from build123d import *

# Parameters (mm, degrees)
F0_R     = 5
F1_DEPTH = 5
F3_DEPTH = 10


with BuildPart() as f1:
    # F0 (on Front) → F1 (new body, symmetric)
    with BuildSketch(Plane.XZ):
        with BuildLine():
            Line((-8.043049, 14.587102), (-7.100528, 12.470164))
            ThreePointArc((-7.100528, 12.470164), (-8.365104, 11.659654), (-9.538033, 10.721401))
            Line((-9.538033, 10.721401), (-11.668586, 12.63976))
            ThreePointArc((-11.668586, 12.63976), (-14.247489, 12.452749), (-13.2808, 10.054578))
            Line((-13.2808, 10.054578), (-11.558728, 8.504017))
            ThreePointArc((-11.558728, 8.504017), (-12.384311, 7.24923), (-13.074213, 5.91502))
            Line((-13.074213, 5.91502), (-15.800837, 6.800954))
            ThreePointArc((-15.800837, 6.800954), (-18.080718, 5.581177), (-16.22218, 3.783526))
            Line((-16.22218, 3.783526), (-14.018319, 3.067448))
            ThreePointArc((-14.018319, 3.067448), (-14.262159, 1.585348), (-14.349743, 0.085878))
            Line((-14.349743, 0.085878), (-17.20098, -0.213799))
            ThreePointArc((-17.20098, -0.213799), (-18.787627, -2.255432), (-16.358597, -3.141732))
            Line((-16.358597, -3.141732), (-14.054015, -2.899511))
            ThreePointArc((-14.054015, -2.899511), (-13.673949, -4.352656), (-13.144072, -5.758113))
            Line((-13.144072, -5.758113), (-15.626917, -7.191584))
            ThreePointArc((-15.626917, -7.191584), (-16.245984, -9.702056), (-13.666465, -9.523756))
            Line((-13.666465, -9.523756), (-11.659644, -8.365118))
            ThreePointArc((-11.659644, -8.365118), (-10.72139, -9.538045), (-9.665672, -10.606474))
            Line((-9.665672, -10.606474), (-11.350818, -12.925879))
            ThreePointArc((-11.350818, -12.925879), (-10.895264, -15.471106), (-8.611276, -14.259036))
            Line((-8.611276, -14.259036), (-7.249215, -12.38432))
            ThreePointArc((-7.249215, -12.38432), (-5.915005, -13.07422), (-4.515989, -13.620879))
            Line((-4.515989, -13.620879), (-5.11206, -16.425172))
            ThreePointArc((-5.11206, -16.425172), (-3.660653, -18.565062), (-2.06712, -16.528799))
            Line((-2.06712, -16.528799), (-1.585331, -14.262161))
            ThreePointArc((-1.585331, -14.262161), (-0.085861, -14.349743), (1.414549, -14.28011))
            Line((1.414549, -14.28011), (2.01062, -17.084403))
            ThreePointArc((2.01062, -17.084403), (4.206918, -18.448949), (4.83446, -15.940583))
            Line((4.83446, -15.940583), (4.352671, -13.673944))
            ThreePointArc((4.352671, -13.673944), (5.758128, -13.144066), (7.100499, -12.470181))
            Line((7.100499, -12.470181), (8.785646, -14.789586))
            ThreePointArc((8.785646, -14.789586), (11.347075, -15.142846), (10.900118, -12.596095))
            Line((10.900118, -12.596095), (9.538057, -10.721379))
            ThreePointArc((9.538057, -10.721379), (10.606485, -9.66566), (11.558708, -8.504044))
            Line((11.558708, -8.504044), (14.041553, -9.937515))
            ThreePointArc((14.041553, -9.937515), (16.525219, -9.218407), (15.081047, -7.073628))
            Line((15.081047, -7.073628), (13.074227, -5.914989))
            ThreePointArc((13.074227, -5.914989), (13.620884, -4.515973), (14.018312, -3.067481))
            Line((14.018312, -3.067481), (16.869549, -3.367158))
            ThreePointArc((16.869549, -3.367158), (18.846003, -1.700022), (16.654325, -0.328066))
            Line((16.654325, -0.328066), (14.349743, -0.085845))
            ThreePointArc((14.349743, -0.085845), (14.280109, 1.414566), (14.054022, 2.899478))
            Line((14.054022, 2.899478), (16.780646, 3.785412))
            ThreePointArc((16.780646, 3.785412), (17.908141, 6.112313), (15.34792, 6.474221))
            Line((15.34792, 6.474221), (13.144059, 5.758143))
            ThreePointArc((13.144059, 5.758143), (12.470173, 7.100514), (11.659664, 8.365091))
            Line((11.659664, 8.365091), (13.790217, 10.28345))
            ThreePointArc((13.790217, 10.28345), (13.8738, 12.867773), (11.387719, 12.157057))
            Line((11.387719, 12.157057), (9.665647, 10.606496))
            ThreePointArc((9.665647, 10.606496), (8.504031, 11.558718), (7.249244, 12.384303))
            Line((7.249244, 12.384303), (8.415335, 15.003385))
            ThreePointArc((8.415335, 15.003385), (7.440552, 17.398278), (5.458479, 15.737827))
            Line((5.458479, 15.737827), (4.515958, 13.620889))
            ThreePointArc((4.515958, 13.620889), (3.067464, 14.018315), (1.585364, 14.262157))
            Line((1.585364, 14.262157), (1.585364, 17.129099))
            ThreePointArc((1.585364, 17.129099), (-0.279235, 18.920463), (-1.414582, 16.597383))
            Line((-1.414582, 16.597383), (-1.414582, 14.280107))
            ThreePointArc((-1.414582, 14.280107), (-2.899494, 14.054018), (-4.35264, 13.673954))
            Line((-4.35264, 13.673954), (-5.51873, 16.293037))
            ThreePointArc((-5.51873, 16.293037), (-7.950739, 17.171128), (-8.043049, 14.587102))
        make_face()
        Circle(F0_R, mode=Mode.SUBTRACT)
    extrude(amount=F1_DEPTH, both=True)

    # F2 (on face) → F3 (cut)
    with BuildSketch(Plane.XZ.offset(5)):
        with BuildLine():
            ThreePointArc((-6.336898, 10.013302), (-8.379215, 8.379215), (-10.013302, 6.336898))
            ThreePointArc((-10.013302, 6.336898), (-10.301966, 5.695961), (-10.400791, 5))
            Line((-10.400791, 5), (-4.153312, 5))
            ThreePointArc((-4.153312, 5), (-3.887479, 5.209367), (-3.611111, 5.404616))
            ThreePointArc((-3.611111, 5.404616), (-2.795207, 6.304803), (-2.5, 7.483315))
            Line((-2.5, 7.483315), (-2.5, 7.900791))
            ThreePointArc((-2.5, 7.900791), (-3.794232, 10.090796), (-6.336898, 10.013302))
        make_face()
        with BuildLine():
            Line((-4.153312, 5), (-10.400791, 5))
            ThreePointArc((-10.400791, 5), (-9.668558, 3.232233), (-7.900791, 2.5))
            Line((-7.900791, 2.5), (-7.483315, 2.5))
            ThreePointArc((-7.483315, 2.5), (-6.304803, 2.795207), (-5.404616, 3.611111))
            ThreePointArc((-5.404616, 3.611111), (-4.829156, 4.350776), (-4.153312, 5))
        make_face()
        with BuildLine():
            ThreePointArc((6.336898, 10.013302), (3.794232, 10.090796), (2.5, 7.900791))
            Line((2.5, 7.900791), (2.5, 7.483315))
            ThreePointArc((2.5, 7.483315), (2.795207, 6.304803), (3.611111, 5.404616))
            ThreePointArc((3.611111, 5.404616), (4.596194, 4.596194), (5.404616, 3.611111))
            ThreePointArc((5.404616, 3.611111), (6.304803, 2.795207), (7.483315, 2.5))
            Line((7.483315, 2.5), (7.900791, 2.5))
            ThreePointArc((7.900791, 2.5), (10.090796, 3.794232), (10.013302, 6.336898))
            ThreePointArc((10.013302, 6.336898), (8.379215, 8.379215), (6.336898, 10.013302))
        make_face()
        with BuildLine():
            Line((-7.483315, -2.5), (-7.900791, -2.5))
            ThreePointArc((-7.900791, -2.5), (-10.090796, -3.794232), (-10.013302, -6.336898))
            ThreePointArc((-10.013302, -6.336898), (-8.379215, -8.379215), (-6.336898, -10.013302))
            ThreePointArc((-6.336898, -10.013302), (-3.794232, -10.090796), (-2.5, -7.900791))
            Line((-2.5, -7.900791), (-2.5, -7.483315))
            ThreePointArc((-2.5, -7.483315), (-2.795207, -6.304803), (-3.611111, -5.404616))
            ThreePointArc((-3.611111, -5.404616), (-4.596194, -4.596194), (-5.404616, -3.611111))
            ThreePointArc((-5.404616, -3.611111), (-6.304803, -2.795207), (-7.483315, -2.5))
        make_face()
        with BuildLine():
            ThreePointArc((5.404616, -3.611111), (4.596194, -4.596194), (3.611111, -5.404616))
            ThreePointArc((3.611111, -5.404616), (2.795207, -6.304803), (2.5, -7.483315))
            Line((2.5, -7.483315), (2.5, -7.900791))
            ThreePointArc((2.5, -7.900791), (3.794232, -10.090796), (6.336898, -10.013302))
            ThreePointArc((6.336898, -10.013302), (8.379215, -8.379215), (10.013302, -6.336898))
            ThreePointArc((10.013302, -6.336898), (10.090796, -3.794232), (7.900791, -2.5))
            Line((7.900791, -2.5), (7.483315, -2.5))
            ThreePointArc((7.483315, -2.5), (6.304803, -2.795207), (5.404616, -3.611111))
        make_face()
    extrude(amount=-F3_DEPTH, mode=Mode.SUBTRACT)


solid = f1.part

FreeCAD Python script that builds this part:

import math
import FreeCAD as App
import Part
import Sketcher
Q = App.Units.Quantity

doc = App.newDocument("Part")
body = doc.addObject("PartDesign::Body", "Body")

# Sketch on XZ plane
sketch1 = body.newObject("Sketcher::SketchObject", "Sketch")
sketch1.AttachmentSupport = (doc.getObject("XZ_Plane"), [""])
sketch1.MapMode = "FlatFace"
sketch1.addGeometry([
    Part.LineSegment(App.Vector(-8.043049, 14.587102, 0), App.Vector(-7.100528, 12.470164, 0)),  # 0
    Part.ArcOfCircle(Part.Circle(App.Vector(0.000012, -0.000024, 0), App.Vector(0, 0, 1), 14.350026), math.radians(119.657239), math.radians(131.657083)),  # 1
    Part.LineSegment(App.Vector(-9.538033, 10.721401, 0), App.Vector(-11.668586, 12.63976, 0)),  # 2
    Part.ArcOfCircle(Part.Circle(App.Vector(-12.88986, 11.606082, 0), App.Vector(0, 0, 1), 1.6), math.radians(40.24433), math.radians(255.857324)),  # 3
    Part.LineSegment(App.Vector(-13.2808, 10.054578, 0), App.Vector(-11.558728, 8.504017, 0)),  # 4
    Part.ArcOfCircle(Part.Circle(App.Vector(0.000044, -0.000027, 0), App.Vector(0, 0, 1), 14.350051), math.radians(143.657259), math.radians(155.657082)),  # 5
    Part.LineSegment(App.Vector(-13.074213, 5.91502, 0), App.Vector(-15.800837, 6.800954, 0)),  # 6
    Part.ArcOfCircle(Part.Circle(App.Vector(-16.496092, 5.359906, 0), App.Vector(0, 0, 1), 1.6), math.radians(64.244329), math.radians(279.857309)),  # 7
    Part.LineSegment(App.Vector(-16.22218, 3.783526, 0), App.Vector(-14.018319, 3.067448, 0)),  # 8
    Part.ArcOfCircle(Part.Circle(App.Vector(-0.000035, 0.000005, 0), App.Vector(0, 0, 1), 14.349965), math.radians(167.657232), math.radians(179.657128)),  # 9
    Part.LineSegment(App.Vector(-14.349743, 0.085878, 0), App.Vector(-17.20098, -0.213799, 0)),  # 10
    Part.ArcOfCircle(Part.Circle(App.Vector(-17.25, -1.813048, 0), App.Vector(0, 0, 1), 1.6), math.radians(88.244326), math.radians(303.857331)),  # 11
    Part.LineSegment(App.Vector(-16.358597, -3.141732, 0), App.Vector(-14.054015, -2.899511, 0)),  # 12
    Part.ArcOfCircle(Part.Circle(App.Vector(0.000014, 0.000006, 0), App.Vector(0, 0, 1), 14.350015), math.radians(-168.342744), math.radians(-156.342891)),  # 13
    Part.LineSegment(App.Vector(-13.144072, -5.758113, 0), App.Vector(-15.626917, -7.191584, 0)),  # 14
    Part.ArcOfCircle(Part.Circle(App.Vector(-15.021226, -8.672509, 0), App.Vector(0, 0, 1), 1.6), math.radians(112.24432), math.radians(327.857311)),  # 15
    Part.LineSegment(App.Vector(-13.666465, -9.523756, 0), App.Vector(-11.659644, -8.365118, 0)),  # 16
    Part.ArcOfCircle(Part.Circle(App.Vector(-0.00002, -0.000019, 0), App.Vector(0, 0, 1), 14.349973), math.radians(-144.342772), math.radians(-132.342884)),  # 17
    Part.LineSegment(App.Vector(-9.665672, -10.606474, 0), App.Vector(-11.350818, -12.925879, 0)),  # 18
    Part.ArcOfCircle(Part.Circle(App.Vector(-10.195145, -14.032414, 0), App.Vector(0, 0, 1), 1.6), math.radians(136.244321), math.radians(351.857328)),  # 19
    Part.LineSegment(App.Vector(-8.611276, -14.259036, 0), App.Vector(-7.249215, -12.38432, 0)),  # 20
    Part.ArcOfCircle(Part.Circle(App.Vector(-0.000031, -0.00007, 0), App.Vector(0, 0, 1), 14.349924), math.radians(-120.342789), math.radians(-108.342858)),  # 21
    Part.LineSegment(App.Vector(-4.515989, -13.620879, 0), App.Vector(-5.11206, -16.425172, 0)),  # 22
    Part.ArcOfCircle(Part.Circle(App.Vector(-3.606232, -16.965988, 0), App.Vector(0, 0, 1), 1.6), math.radians(160.244326), math.radians(375.857338)),  # 23
    Part.LineSegment(App.Vector(-2.06712, -16.528799, 0), App.Vector(-1.585331, -14.262161, 0)),  # 24
    Part.ArcOfCircle(Part.Circle(App.Vector(-0.000003, 0.000028, 0), App.Vector(0, 0, 1), 14.350028), math.radians(-96.342732), math.radians(-84.342888)),  # 25
    Part.LineSegment(App.Vector(1.414549, -14.28011, 0), App.Vector(2.01062, -17.084403, 0)),  # 26
    Part.ArcOfCircle(Part.Circle(App.Vector(3.606232, -16.965987, 0), App.Vector(0, 0, 1), 1.6), math.radians(-175.755674), math.radians(39.857314)),  # 27
    Part.LineSegment(App.Vector(4.83446, -15.940583, 0), App.Vector(4.352671, -13.673944, 0)),  # 28
    Part.ArcOfCircle(Part.Circle(App.Vector(0.000038, -0.000083, 0), App.Vector(0, 0, 1), 14.349909), math.radians(-72.342804), math.radians(-60.34286)),  # 29
    Part.LineSegment(App.Vector(7.100499, -12.470181, 0), App.Vector(8.785646, -14.789586, 0)),  # 30
    Part.ArcOfCircle(Part.Circle(App.Vector(10.195146, -14.032414, 0), App.Vector(0, 0, 1), 1.6), math.radians(-151.755678), math.radians(63.857343)),  # 31
    Part.LineSegment(App.Vector(10.900118, -12.596095, 0), App.Vector(9.538057, -10.721379, 0)),  # 32
    Part.ArcOfCircle(Part.Circle(App.Vector(0.000048, -0.000045, 0), App.Vector(0, 0, 1), 14.349935), math.radians(-48.342784), math.radians(-36.34286)),  # 33
    Part.LineSegment(App.Vector(11.558708, -8.504044, 0), App.Vector(14.041553, -9.937515, 0)),  # 34
    Part.ArcOfCircle(Part.Circle(App.Vector(15.021226, -8.672509, 0), App.Vector(0, 0, 1), 1.6), math.radians(-127.755687), math.radians(87.857321)),  # 35
    Part.LineSegment(App.Vector(15.081047, -7.073628, 0), App.Vector(13.074227, -5.914989, 0)),  # 36
    Part.ArcOfCircle(Part.Circle(App.Vector(-0.000094, 0.000032, 0), App.Vector(0, 0, 1), 14.3501), math.radians(-24.342716), math.radians(-12.342936)),  # 37
    Part.LineSegment(App.Vector(14.018312, -3.067481, 0), App.Vector(16.869549, -3.367158, 0)),  # 38
    Part.ArcOfCircle(Part.Circle(App.Vector(17.25, -1.813048, 0), App.Vector(0, 0, 1), 1.6), math.radians(-103.75566), math.radians(111.857338)),  # 39
    Part.LineSegment(App.Vector(16.654325, -0.328066, 0), App.Vector(14.349743, -0.085845, 0)),  # 40
    Part.ArcOfCircle(Part.Circle(App.Vector(0.000061, 0.000008, 0), App.Vector(0, 0, 1), 14.349938), math.radians(-0.342793), math.radians(11.657126)),  # 41
    Part.LineSegment(App.Vector(14.054022, 2.899478, 0), App.Vector(16.780646, 3.785412, 0)),  # 42
    Part.ArcOfCircle(Part.Circle(App.Vector(16.496092, 5.359905, 0), App.Vector(0, 0, 1), 1.6), math.radians(-79.755672), math.radians(135.857322)),  # 43
    Part.LineSegment(App.Vector(15.34792, 6.474221, 0), App.Vector(13.144059, 5.758143, 0)),  # 44
    Part.ArcOfCircle(Part.Circle(App.Vector(0.000047, 0.00003, 0), App.Vector(0, 0, 1), 14.349945), math.radians(23.657208), math.radians(35.657125)),  # 45
    Part.LineSegment(App.Vector(11.659664, 8.365091, 0), App.Vector(13.790217, 10.28345, 0)),  # 46
    Part.ArcOfCircle(Part.Circle(App.Vector(12.88986, 11.606083, 0), App.Vector(0, 0, 1), 1.6), math.radians(-55.755671), math.radians(159.857335)),  # 47
    Part.LineSegment(App.Vector(11.387719, 12.157057, 0), App.Vector(9.665647, 10.606496, 0)),  # 48
    Part.ArcOfCircle(Part.Circle(App.Vector(0.000039, 0.000056, 0), App.Vector(0, 0, 1), 14.349932), math.radians(47.657209), math.radians(59.657132)),  # 49
    Part.LineSegment(App.Vector(7.249244, 12.384303, 0), App.Vector(8.415335, 15.003385, 0)),  # 50
    Part.ArcOfCircle(Part.Circle(App.Vector(7.054855, 15.845462, 0), App.Vector(0, 0, 1), 1.6), math.radians(-31.755666), math.radians(183.857303)),  # 51
    Part.LineSegment(App.Vector(5.458479, 15.737827, 0), App.Vector(4.515958, 13.620889, 0)),  # 52
    Part.ArcOfCircle(Part.Circle(App.Vector(-0.00001, -0.000042, 0), App.Vector(0, 0, 1), 14.350042), math.radians(71.657254), math.radians(83.657087)),  # 53
    Part.LineSegment(App.Vector(1.585364, 14.262157, 0), App.Vector(1.585364, 17.129099, 0)),  # 54
    Part.ArcOfCircle(Part.Circle(App.Vector(0, 17.345018, 0), App.Vector(0, 0, 1), 1.6), math.radians(-7.755683), math.radians(207.857343)),  # 55
    Part.LineSegment(App.Vector(-1.414582, 16.597383, 0), App.Vector(-1.414582, 14.280107, 0)),  # 56
    Part.ArcOfCircle(Part.Circle(App.Vector(0.000011, -0.000051, 0), App.Vector(0, 0, 1), 14.350051), math.radians(95.657267), math.radians(107.657093)),  # 57
    Part.LineSegment(App.Vector(-4.35264, 13.673954, 0), App.Vector(-5.51873, 16.293037, 0)),  # 58
    Part.ArcOfCircle(Part.Circle(App.Vector(-7.054854, 15.845462, 0), App.Vector(0, 0, 1), 1.6), math.radians(16.244345), math.radians(231.857317)),  # 59
    Part.Circle(App.Vector(0, 0, 0), App.Vector(0, 0, 1), 5),  # 60
], False)
sketch1.addConstraint([
    Sketcher.Constraint("Coincident", 0, 2, 1, 1),
    Sketcher.Constraint("Coincident", 1, 2, 2, 1),
    Sketcher.Constraint("Coincident", 2, 2, 3, 1),
    Sketcher.Constraint("Coincident", 3, 2, 4, 1),
    Sketcher.Constraint("Coincident", 4, 2, 5, 1),
    Sketcher.Constraint("Coincident", 5, 2, 6, 1),
    Sketcher.Constraint("Coincident", 6, 2, 7, 1),
    Sketcher.Constraint("Coincident", 7, 2, 8, 1),
    Sketcher.Constraint("Coincident", 8, 2, 9, 1),
    Sketcher.Constraint("Coincident", 9, 2, 10, 1),
    Sketcher.Constraint("Coincident", 10, 2, 11, 1),
    Sketcher.Constraint("Coincident", 11, 2, 12, 1),
    Sketcher.Constraint("Coincident", 12, 2, 13, 1),
    Sketcher.Constraint("Coincident", 13, 2, 14, 1),
    Sketcher.Constraint("Coincident", 14, 2, 15, 1),
    Sketcher.Constraint("Coincident", 15, 2, 16, 1),
    Sketcher.Constraint("Coincident", 16, 2, 17, 1),
    Sketcher.Constraint("Coincident", 17, 2, 18, 1),
    Sketcher.Constraint("Coincident", 18, 2, 19, 1),
    Sketcher.Constraint("Coincident", 19, 2, 20, 1),
    Sketcher.Constraint("Coincident", 20, 2, 21, 1),
    Sketcher.Constraint("Coincident", 21, 2, 22, 1),
    Sketcher.Constraint("Coincident", 22, 2, 23, 1),
    Sketcher.Constraint("Coincident", 23, 2, 24, 1),
    Sketcher.Constraint("Coincident", 24, 2, 25, 1),
    Sketcher.Constraint("Coincident", 25, 2, 26, 1),
    Sketcher.Constraint("Coincident", 26, 2, 27, 1),
    Sketcher.Constraint("Coincident", 27, 2, 28, 1),
    Sketcher.Constraint("Coincident", 28, 2, 29, 1),
    Sketcher.Constraint("Coincident", 29, 2, 30, 1),
    Sketcher.Constraint("Coincident", 30, 2, 31, 1),
    Sketcher.Constraint("Coincident", 31, 2, 32, 1),
    Sketcher.Constraint("Coincident", 32, 2, 33, 1),
    Sketcher.Constraint("Coincident", 33, 2, 34, 1),
    Sketcher.Constraint("Coincident", 34, 2, 35, 1),
    Sketcher.Constraint("Coincident", 35, 2, 36, 1),
    Sketcher.Constraint("Coincident", 36, 2, 37, 1),
    Sketcher.Constraint("Coincident", 37, 2, 38, 1),
    Sketcher.Constraint("Coincident", 38, 2, 39, 1),
    Sketcher.Constraint("Coincident", 39, 2, 40, 1),
    Sketcher.Constraint("Coincident", 40, 2, 41, 1),
    Sketcher.Constraint("Coincident", 41, 2, 42, 1),
    Sketcher.Constraint("Coincident", 42, 2, 43, 1),
    Sketcher.Constraint("Coincident", 43, 2, 44, 1),
    Sketcher.Constraint("Coincident", 44, 2, 45, 1),
    Sketcher.Constraint("Coincident", 45, 2, 46, 1),
    Sketcher.Constraint("Coincident", 46, 2, 47, 1),
    Sketcher.Constraint("Coincident", 47, 2, 48, 1),
    Sketcher.Constraint("Coincident", 48, 2, 49, 1),
    Sketcher.Constraint("Coincident", 49, 2, 50, 1),
    Sketcher.Constraint("Coincident", 50, 2, 51, 1),
    Sketcher.Constraint("Coincident", 51, 2, 52, 1),
    Sketcher.Constraint("Coincident", 52, 2, 53, 1),
    Sketcher.Constraint("Coincident", 53, 2, 54, 1),
    Sketcher.Constraint("Coincident", 54, 2, 55, 1),
    Sketcher.Constraint("Coincident", 55, 2, 56, 1),
    Sketcher.Constraint("Coincident", 56, 2, 57, 1),
    Sketcher.Constraint("Coincident", 57, 2, 58, 1),
    Sketcher.Constraint("Coincident", 58, 2, 59, 1),
    Sketcher.Constraint("Coincident", 59, 2, 0, 1),
    Sketcher.Constraint("Vertical", 54),
    Sketcher.Constraint("Vertical", 56),
    Sketcher.Constraint("Coincident", 60, 3, -1, 1),
    Sketcher.Constraint("PointOnObject", 55, 3, -2),
    Sketcher.Constraint("Diameter", 60, Q("10 mm")),
    Sketcher.Constraint("Radius", 3, Q("1.6 mm")),
    Sketcher.Constraint("Radius", 7, Q("1.6 mm")),
    Sketcher.Constraint("Radius", 11, Q("1.6 mm")),
    Sketcher.Constraint("Radius", 15, Q("1.6 mm")),
    Sketcher.Constraint("Radius", 19, Q("1.6 mm")),
    Sketcher.Constraint("Radius", 23, Q("1.6 mm")),
    Sketcher.Constraint("Radius", 27, Q("1.6 mm")),
    Sketcher.Constraint("Radius", 31, Q("1.6 mm")),
    Sketcher.Constraint("Radius", 35, Q("1.6 mm")),
    Sketcher.Constraint("Radius", 39, Q("1.6 mm")),
    Sketcher.Constraint("Radius", 43, Q("1.6 mm")),
    Sketcher.Constraint("Radius", 47, Q("1.6 mm")),
    Sketcher.Constraint("Radius", 51, Q("1.6 mm")),
    Sketcher.Constraint("Radius", 55, Q("1.6 mm")),
    Sketcher.Constraint("Radius", 59, Q("1.6 mm")),
    Sketcher.Constraint("Radius", 37, Q("14.3501 mm")),
    Sketcher.Constraint("DistanceX", 11, 3, -1, 1, Q("17.25 mm")),
    Sketcher.Constraint("DistanceX", -1, 1, 39, 3, Q("17.25 mm")),
    Sketcher.Constraint("Radius", 5, Q("14.350051 mm")),
    Sketcher.Constraint("Radius", 29, Q("14.349909 mm")),
    Sketcher.Constraint("Radius", 41, Q("14.349938 mm")),
    Sketcher.Constraint("Radius", 57, Q("14.350051 mm")),
    Sketcher.Constraint("Radius", 1, Q("14.350026 mm")),
    Sketcher.Constraint("Radius", 9, Q("14.349965 mm")),
    Sketcher.Constraint("Radius", 13, Q("14.350015 mm")),
    Sketcher.Constraint("Radius", 17, Q("14.349973 mm")),
    Sketcher.Constraint("Radius", 21, Q("14.349924 mm")),
    Sketcher.Constraint("Radius", 25, Q("14.350028 mm")),
    Sketcher.Constraint("Radius", 33, Q("14.349935 mm")),
    Sketcher.Constraint("Radius", 45, Q("14.349945 mm")),
    Sketcher.Constraint("Radius", 49, Q("14.349932 mm")),
    Sketcher.Constraint("Radius", 53, Q("14.350042 mm")),
    Sketcher.Constraint("DistanceY", 54, 1, 54, 2, Q("2.866942 mm")),
    Sketcher.Constraint("DistanceY", -1, 1, 1, 2, Q("10.721401 mm")),
    Sketcher.Constraint("DistanceX", 3, 2, -1, 1, Q("13.2808 mm")),
    Sketcher.Constraint("DistanceY", 10, 2, -1, 1, Q("0.213799 mm")),
    Sketcher.Constraint("DistanceY", 23, 2, -1, 1, Q("16.528799 mm")),
    Sketcher.Constraint("DistanceX", -1, 1, 29, 2, Q("7.100499 mm")),
    Sketcher.Constraint("DistanceY", -1, 1, 54, 2, Q("17.129099 mm")),
    Sketcher.Constraint("DistanceY", 56, 2, 56, 1, Q("2.317276 mm")),
    Sketcher.Constraint("DistanceX", 3, 3, -1, 1, Q("12.88986 mm")),
    Sketcher.Constraint("DistanceY", 11, 3, -1, 1, Q("1.813048 mm")),
    Sketcher.Constraint("DistanceY", 15, 3, -1, 1, Q("8.672509 mm")),
    Sketcher.Constraint("DistanceX", 23, 3, -1, 1, Q("3.606232 mm")),
    Sketcher.Constraint("DistanceX", -1, 1, 27, 3, Q("3.606232 mm")),
    Sketcher.Constraint("DistanceY", 35, 3, -1, 1, Q("8.672509 mm")),
    Sketcher.Constraint("DistanceY", 39, 3, -1, 1, Q("1.813048 mm")),
    Sketcher.Constraint("DistanceX", -1, 1, 47, 3, Q("12.88986 mm")),
    Sketcher.Constraint("DistanceY", -1, 1, 51, 3, Q("15.845462 mm")),
    Sketcher.Constraint("DistanceY", -1, 1, 2, 2, Q("12.63976 mm")),
    Sketcher.Constraint("DistanceY", -1, 1, 3, 2, Q("10.054578 mm")),
    Sketcher.Constraint("DistanceY", -1, 1, 5, 2, Q("5.91502 mm")),
    Sketcher.Constraint("DistanceX", 7, 2, -1, 1, Q("16.22218 mm")),
    Sketcher.Constraint("DistanceX", 8, 2, -1, 1, Q("14.018319 mm")),
    Sketcher.Constraint("DistanceY", -1, 1, 8, 2, Q("3.067448 mm")),
    Sketcher.Constraint("DistanceY", -1, 1, 9, 2, Q("0.085878 mm")),
    Sketcher.Constraint("DistanceY", 11, 2, -1, 1, Q("3.141732 mm")),
    Sketcher.Constraint("DistanceY", 12, 2, -1, 1, Q("2.899511 mm")),
    Sketcher.Constraint("DistanceY", 16, 2, -1, 1, Q("8.365118 mm")),
    Sketcher.Constraint("DistanceY", 18, 2, -1, 1, Q("12.925879 mm")),
    Sketcher.Constraint("DistanceY", 20, 2, -1, 1, Q("12.38432 mm")),
    Sketcher.Constraint("DistanceX", 21, 2, -1, 1, Q("4.515989 mm")),
    Sketcher.Constraint("DistanceY", 21, 2, -1, 1, Q("13.620879 mm")),
    Sketcher.Constraint("DistanceX", 22, 2, -1, 1, Q("5.11206 mm")),
    Sketcher.Constraint("DistanceY", 22, 2, -1, 1, Q("16.425172 mm")),
    Sketcher.Constraint("DistanceX", 24, 2, -1, 1, Q("1.585331 mm")),
    Sketcher.Constraint("DistanceY", 24, 2, -1, 1, Q("14.262161 mm")),
    Sketcher.Constraint("DistanceX", -1, 1, 25, 2, Q("1.414549 mm")),
    Sketcher.Constraint("DistanceY", 25, 2, -1, 1, Q("14.28011 mm")),
    Sketcher.Constraint("DistanceX", -1, 1, 26, 2, Q("2.01062 mm")),
    Sketcher.Constraint("DistanceX", -1, 1, 27, 2, Q("4.83446 mm")),
    Sketcher.Constraint("DistanceX", -1, 1, 28, 2, Q("4.352671 mm")),
    Sketcher.Constraint("DistanceY", 29, 2, -1, 1, Q("12.470181 mm")),
    Sketcher.Constraint("DistanceY", 32, 2, -1, 1, Q("10.721379 mm")),
    Sketcher.Constraint("DistanceY", 36, 2, -1, 1, Q("5.914989 mm")),
    Sketcher.Constraint("DistanceX", -1, 1, 37, 2, Q("14.018312 mm")),
    Sketcher.Constraint("DistanceY", 37, 2, -1, 1, Q("3.067481 mm")),
    Sketcher.Constraint("DistanceX", -1, 1, 38, 2, Q("16.869549 mm")),
    Sketcher.Constraint("DistanceX", -1, 1, 41, 2, Q("14.054022 mm")),
    Sketcher.Constraint("DistanceY", -1, 1, 42, 2, Q("3.785412 mm")),
    Sketcher.Constraint("DistanceX", -1, 1, 43, 2, Q("15.34792 mm")),
    Sketcher.Constraint("DistanceY", -1, 1, 43, 2, Q("6.474221 mm")),
    Sketcher.Constraint("DistanceX", -1, 1, 44, 2, Q("13.144059 mm")),
    Sketcher.Constraint("DistanceY", -1, 1, 45, 2, Q("8.365091 mm")),
    Sketcher.Constraint("DistanceY", -1, 1, 46, 2, Q("10.28345 mm")),
    Sketcher.Constraint("DistanceX", -1, 1, 47, 2, Q("11.387719 mm")),
    Sketcher.Constraint("DistanceX", -1, 1, 51, 2, Q("5.458479 mm")),
    Sketcher.Constraint("DistanceX", -1, 1, 52, 2, Q("4.515958 mm")),
    Sketcher.Constraint("DistanceY", -1, 1, 52, 2, Q("13.620889 mm")),
    Sketcher.Constraint("DistanceX", 57, 2, -1, 1, Q("4.35264 mm")),
    Sketcher.Constraint("DistanceX", 58, 2, -1, 1, Q("5.51873 mm")),
    Sketcher.Constraint("DistanceX", 59, 2, -1, 1, Q("8.043049 mm")),
    Sketcher.Constraint("Distance", 0, Q("2.317277 mm")),
    Sketcher.Constraint("Distance", 2, Q("2.866942 mm")),
    Sketcher.Constraint("Distance", 4, Q("2.317277 mm")),
    Sketcher.Constraint("Distance", 6, Q("2.866942 mm")),
    Sketcher.Constraint("Distance", 8, Q("2.317277 mm")),
    Sketcher.Constraint("Distance", 10, Q("2.866942 mm")),
    Sketcher.Constraint("Distance", 12, Q("2.317276 mm")),
    Sketcher.Constraint("Distance", 14, Q("2.866942 mm")),
    Sketcher.Constraint("Distance", 16, Q("2.317277 mm")),
    Sketcher.Constraint("Distance", 18, Q("2.866942 mm")),
    Sketcher.Constraint("Distance", 20, Q("2.317276 mm")),
    Sketcher.Constraint("Distance", 26, Q("2.866943 mm")),
    Sketcher.Constraint("Distance", 28, Q("2.317277 mm")),
    Sketcher.Constraint("Distance", 30, Q("2.866943 mm")),
    Sketcher.Constraint("Distance", 32, Q("2.317276 mm")),
    Sketcher.Constraint("Distance", 34, Q("2.866942 mm")),
    Sketcher.Constraint("Distance", 36, Q("2.317277 mm")),
    Sketcher.Constraint("Distance", 40, Q("2.317276 mm")),
    Sketcher.Constraint("Distance", 42, Q("2.866942 mm")),
    Sketcher.Constraint("Distance", 44, Q("2.317277 mm")),
    Sketcher.Constraint("Distance", 46, Q("2.866942 mm")),
    Sketcher.Constraint("Distance", 48, Q("2.317277 mm")),
    Sketcher.Constraint("Distance", 50, Q("2.866942 mm")),
    Sketcher.Constraint("Distance", 52, Q("2.317277 mm")),
    Sketcher.Constraint("Distance", 58, Q("2.866943 mm")),
    Sketcher.Constraint("DistanceX", 7, 3, -1, 1, Q("16.496092 mm")),
    Sketcher.Constraint("DistanceX", 15, 3, -1, 1, Q("15.021226 mm")),
    Sketcher.Constraint("DistanceX", 19, 3, -1, 1, Q("10.195145 mm")),
    Sketcher.Constraint("DistanceY", 19, 3, -1, 1, Q("14.032414 mm")),
    Sketcher.Constraint("DistanceX", -1, 1, 31, 3, Q("10.195146 mm")),
    Sketcher.Constraint("DistanceY", 31, 3, -1, 1, Q("14.032414 mm")),
    Sketcher.Constraint("DistanceX", -1, 1, 35, 3, Q("15.021226 mm")),
    Sketcher.Constraint("DistanceX", -1, 1, 43, 3, Q("16.496092 mm")),
    Sketcher.Constraint("DistanceY", -1, 1, 47, 3, Q("11.606083 mm")),
    Sketcher.Constraint("DistanceY", -1, 1, 55, 3, Q("17.345018 mm")),
    Sketcher.Constraint("DistanceX", 59, 3, -1, 1, Q("7.054854 mm")),
    Sketcher.Constraint("DistanceY", -1, 1, 59, 3, Q("15.845462 mm")),
    Sketcher.Constraint("DistanceX", 0, 2, -1, 1, Q("7.100528 mm")),
    Sketcher.Constraint("DistanceX", 4, 2, -1, 1, Q("11.558728 mm")),
    Sketcher.Constraint("DistanceX", 5, 2, -1, 1, Q("13.074213 mm")),
    Sketcher.Constraint("DistanceX", 13, 2, -1, 1, Q("13.144072 mm")),
    Sketcher.Constraint("DistanceY", 13, 2, -1, 1, Q("5.758113 mm")),
    Sketcher.Constraint("DistanceX", 15, 2, -1, 1, Q("13.666465 mm")),
    Sketcher.Constraint("DistanceX", 17, 2, -1, 1, Q("9.665672 mm")),
    Sketcher.Constraint("DistanceX", 19, 2, -1, 1, Q("8.611276 mm")),
    Sketcher.Constraint("DistanceX", -1, 1, 31, 2, Q("10.900118 mm")),
    Sketcher.Constraint("DistanceX", -1, 1, 33, 2, Q("11.558708 mm")),
    Sketcher.Constraint("DistanceY", 33, 2, -1, 1, Q("8.504044 mm")),
    Sketcher.Constraint("DistanceX", -1, 1, 35, 2, Q("15.081047 mm")),
    Sketcher.Constraint("DistanceX", -1, 1, 39, 2, Q("16.654325 mm")),
    Sketcher.Constraint("DistanceX", -1, 1, 40, 2, Q("14.349743 mm")),
    Sketcher.Constraint("DistanceX", -1, 1, 48, 2, Q("9.665647 mm")),
    Sketcher.Constraint("DistanceX", -1, 1, 49, 2, Q("7.249244 mm")),
    Sketcher.Constraint("DistanceY", -1, 1, 49, 2, Q("12.384303 mm")),
    Sketcher.Constraint("DistanceX", 55, 2, -1, 1, Q("1.414582 mm")),
])
pad1 = body.newObject("PartDesign::Pad", "Pad")
pad1.Profile = sketch1
pad1.Length = 10
pad1.Midplane = True

# Sketch on XZ plane
sketch2 = body.newObject("Sketcher::SketchObject", "Sketch001")
sketch2.AttachmentSupport = (doc.getObject("XZ_Plane"), [""])
sketch2.MapMode = "FlatFace"
sketch2.AttachmentOffset = App.Placement(App.Vector(0, 0, 5), App.Rotation())
sketch2.addGeometry([
    Part.ArcOfCircle(Part.Circle(App.Vector(0.000006, -0.000006, 0), App.Vector(0, 0, 1), 11.850008), math.radians(122.327601), math.radians(147.672399)),  # 0
    Part.ArcOfCircle(Part.Circle(App.Vector(-7.900809, 5.000005, 0), App.Vector(0, 0, 1), 2.499982), math.radians(147.67229), math.radians(180.000108)),  # 1
    Part.ArcOfCircle(Part.Circle(App.Vector(-7.900791, 5, 0), App.Vector(0, 0, 1), 2.5), math.radians(179.999996), math.radians(270.000004)),  # 2
    Part.LineSegment(App.Vector(-7.900791, 2.5, 0), App.Vector(-7.483315, 2.5, 0)),  # 3
    Part.ArcOfCircle(Part.Circle(App.Vector(-7.483313, 4.999998, 0), App.Vector(0, 0, 1), 2.499998), math.radians(-90.000039), math.radians(-33.748965)),  # 4
    Part.ArcOfCircle(Part.Circle(App.Vector(-0.000004, 0.000005, 0), App.Vector(0, 0, 1), 6.499994), math.radians(129.715139), math.radians(146.251028)),  # 5
    Part.ArcOfCircle(Part.Circle(App.Vector(0.000037, -0.000054, 0), App.Vector(0, 0, 1), 6.500065), math.radians(123.748994), math.radians(129.715083)),  # 6
    Part.ArcOfCircle(Part.Circle(App.Vector(-4.999998, 7.483313, 0), App.Vector(0, 0, 1), 2.499998), math.radians(-56.251035), math.radians(0.000039)),  # 7
    Part.LineSegment(App.Vector(-2.5, 7.483315, 0), App.Vector(-2.5, 7.900791, 0)),  # 8
    Part.ArcOfCircle(Part.Circle(App.Vector(-5, 7.900791, 0), App.Vector(0, 0, 1), 2.5), math.radians(0.00001), math.radians(122.327578)),  # 9
    Part.ArcOfCircle(Part.Circle(App.Vector(5, 7.900791, 0), App.Vector(0, 0, 1), 2.5), math.radians(57.672422), math.radians(179.99999)),  # 10
    Part.LineSegment(App.Vector(2.5, 7.900791, 0), App.Vector(2.5, 7.483315, 0)),  # 11
    Part.ArcOfCircle(Part.Circle(App.Vector(4.999998, 7.483313, 0), App.Vector(0, 0, 1), 2.499998), math.radians(179.999961), math.radians(236.251035)),  # 12
    Part.ArcOfCircle(Part.Circle(App.Vector(0.000005, 0.000005, 0), App.Vector(0, 0, 1), 6.499993), math.radians(33.748976), math.radians(56.251024)),  # 13
    Part.ArcOfCircle(Part.Circle(App.Vector(7.483313, 4.999998, 0), App.Vector(0, 0, 1), 2.499998), math.radians(-146.251035), math.radians(-89.999961)),  # 14
    Part.LineSegment(App.Vector(7.483315, 2.5, 0), App.Vector(7.900791, 2.5, 0)),  # 15
    Part.ArcOfCircle(Part.Circle(App.Vector(7.900791, 5, 0), App.Vector(0, 0, 1), 2.5), math.radians(-89.99999), math.radians(32.327578)),  # 16
    Part.ArcOfCircle(Part.Circle(App.Vector(-0.000006, -0.000006, 0), App.Vector(0, 0, 1), 11.850008), math.radians(32.327601), math.radians(57.672399)),  # 17
    Part.LineSegment(App.Vector(-7.483315, -2.5, 0), App.Vector(-7.900791, -2.5, 0)),  # 18
    Part.ArcOfCircle(Part.Circle(App.Vector(-7.900791, -5, 0), App.Vector(0, 0, 1), 2.5), math.radians(90.00001), math.radians(212.327578)),  # 19
    Part.ArcOfCircle(Part.Circle(App.Vector(0.000006, 0.000006, 0), App.Vector(0, 0, 1), 11.850008), math.radians(-147.672399), math.radians(-122.327601)),  # 20
    Part.ArcOfCircle(Part.Circle(App.Vector(-5, -7.900791, 0), App.Vector(0, 0, 1), 2.5), math.radians(-122.327578), math.radians(-0.00001)),  # 21
    Part.LineSegment(App.Vector(-2.5, -7.900791, 0), App.Vector(-2.5, -7.483315, 0)),  # 22
    Part.ArcOfCircle(Part.Circle(App.Vector(-4.999998, -7.483313, 0), App.Vector(0, 0, 1), 2.499998), math.radians(-0.000039), math.radians(56.251035)),  # 23
    Part.ArcOfCircle(Part.Circle(App.Vector(-0.000005, -0.000005, 0), App.Vector(0, 0, 1), 6.499993), math.radians(-146.251024), math.radians(-123.748976)),  # 24
    Part.ArcOfCircle(Part.Circle(App.Vector(-7.483313, -4.999998, 0), App.Vector(0, 0, 1), 2.499998), math.radians(33.748965), math.radians(90.000039)),  # 25
    Part.ArcOfCircle(Part.Circle(App.Vector(0.000005, -0.000005, 0), App.Vector(0, 0, 1), 6.499993), math.radians(-56.251024), math.radians(-33.748976)),  # 26
    Part.ArcOfCircle(Part.Circle(App.Vector(4.999998, -7.483313, 0), App.Vector(0, 0, 1), 2.499998), math.radians(123.748965), math.radians(180.000039)),  # 27
    Part.LineSegment(App.Vector(2.5, -7.483315, 0), App.Vector(2.5, -7.900791, 0)),  # 28
    Part.ArcOfCircle(Part.Circle(App.Vector(5, -7.900791, 0), App.Vector(0, 0, 1), 2.5), math.radians(-179.99999), math.radians(-57.672422)),  # 29
    Part.ArcOfCircle(Part.Circle(App.Vector(-0.000006, 0.000006, 0), App.Vector(0, 0, 1), 11.850008), math.radians(-57.672399), math.radians(-32.327601)),  # 30
    Part.ArcOfCircle(Part.Circle(App.Vector(7.900791, -5, 0), App.Vector(0, 0, 1), 2.5), math.radians(-32.327578), math.radians(89.99999)),  # 31
    Part.LineSegment(App.Vector(7.900791, -2.5, 0), App.Vector(7.483315, -2.5, 0)),  # 32
    Part.ArcOfCircle(Part.Circle(App.Vector(7.483313, -4.999998, 0), App.Vector(0, 0, 1), 2.499998), math.radians(89.999961), math.radians(146.251035)),  # 33
], False)
sketch2.addConstraint([
    Sketcher.Constraint("Coincident", 0, 2, 1, 1),
    Sketcher.Constraint("Coincident", 1, 2, 2, 1),
    Sketcher.Constraint("Coincident", 2, 2, 3, 1),
    Sketcher.Constraint("Coincident", 3, 2, 4, 1),
    Sketcher.Constraint("Coincident", 4, 2, 5, 2),
    Sketcher.Constraint("Coincident", 5, 1, 6, 2),
    Sketcher.Constraint("Coincident", 6, 1, 7, 1),
    Sketcher.Constraint("Coincident", 7, 2, 8, 1),
    Sketcher.Constraint("Coincident", 8, 2, 9, 1),
    Sketcher.Constraint("Coincident", 9, 2, 0, 1),
    Sketcher.Constraint("Coincident", 10, 2, 11, 1),
    Sketcher.Constraint("Coincident", 11, 2, 12, 1),
    Sketcher.Constraint("Coincident", 12, 2, 13, 2),
    Sketcher.Constraint("Coincident", 13, 1, 14, 1),
    Sketcher.Constraint("Coincident", 14, 2, 15, 1),
    Sketcher.Constraint("Coincident", 15, 2, 16, 1),
    Sketcher.Constraint("Coincident", 16, 2, 17, 1),
    Sketcher.Constraint("Coincident", 17, 2, 10, 1),
    Sketcher.Constraint("Coincident", 18, 2, 19, 1),
    Sketcher.Constraint("Coincident", 19, 2, 20, 1),
    Sketcher.Constraint("Coincident", 20, 2, 21, 1),
    Sketcher.Constraint("Coincident", 21, 2, 22, 1),
    Sketcher.Constraint("Coincident", 22, 2, 23, 1),
    Sketcher.Constraint("Coincident", 23, 2, 24, 2),
    Sketcher.Constraint("Coincident", 24, 1, 25, 1),
    Sketcher.Constraint("Coincident", 25, 2, 18, 1),
    Sketcher.Constraint("Coincident", 26, 1, 27, 1),
    Sketcher.Constraint("Coincident", 27, 2, 28, 1),
    Sketcher.Constraint("Coincident", 28, 2, 29, 1),
    Sketcher.Constraint("Coincident", 29, 2, 30, 1),
    Sketcher.Constraint("Coincident", 30, 2, 31, 1),
    Sketcher.Constraint("Coincident", 31, 2, 32, 1),
    Sketcher.Constraint("Coincident", 32, 2, 33, 1),
    Sketcher.Constraint("Coincident", 33, 2, 26, 2),
    Sketcher.Constraint("Horizontal", 3),
    Sketcher.Constraint("Vertical", 8),
    Sketcher.Constraint("Vertical", 11),
    Sketcher.Constraint("Horizontal", 15),
    Sketcher.Constraint("Horizontal", 18),
    Sketcher.Constraint("Vertical", 22),
    Sketcher.Constraint("Vertical", 28),
    Sketcher.Constraint("Horizontal", 32),
    Sketcher.Constraint("Coincident", 0, 3, -1, 1),
    Sketcher.Constraint("Coincident", 5, 3, -1, 1),
    Sketcher.Constraint("Coincident", 13, 3, -1, 1),
    Sketcher.Constraint("Coincident", 17, 3, -1, 1),
    Sketcher.Constraint("Coincident", 20, 3, -1, 1),
    Sketcher.Constraint("Coincident", 24, 3, -1, 1),
    Sketcher.Constraint("Coincident", 26, 3, -1, 1),
    Sketcher.Constraint("Coincident", 30, 3, -1, 1),
    Sketcher.Constraint("Radius", 2, Q("2.5 mm")),
    Sketcher.Constraint("Radius", 9, Q("2.5 mm")),
    Sketcher.Constraint("Radius", 10, Q("2.5 mm")),
    Sketcher.Constraint("Radius", 16, Q("2.5 mm")),
    Sketcher.Constraint("Radius", 19, Q("2.5 mm")),
    Sketcher.Constraint("Radius", 21, Q("2.5 mm")),
    Sketcher.Constraint("Radius", 29, Q("2.5 mm")),
    Sketcher.Constraint("Radius", 31, Q("2.5 mm")),
    Sketcher.Constraint("DistanceY", -1, 1, 2, 3, Q("5 mm")),
    Sketcher.Constraint("DistanceX", 9, 3, -1, 1, Q("5 mm")),
    Sketcher.Constraint("DistanceX", -1, 1, 10, 3, Q("5 mm")),
    Sketcher.Constraint("DistanceY", -1, 1, 16, 3, Q("5 mm")),
    Sketcher.Constraint("DistanceY", 19, 3, -1, 1, Q("5 mm")),
    Sketcher.Constraint("DistanceX", 21, 3, -1, 1, Q("5 mm")),
    Sketcher.Constraint("DistanceX", -1, 1, 29, 3, Q("5 mm")),
    Sketcher.Constraint("DistanceY", 31, 3, -1, 1, Q("5 mm")),
    Sketcher.Constraint("DistanceY", -1, 1, 1, 2, Q("5 mm")),
    Sketcher.Constraint("DistanceY", -1, 1, 5, 1, Q("5 mm")),
    Sketcher.Constraint("DistanceY", 5, 3, 1, 3, Q("5 mm")),
    Sketcher.Constraint("DistanceX", 5, 3, 12, 3, Q("5.000002 mm")),
    Sketcher.Constraint("DistanceX", 1, 2, 2, 2, Q("2.5 mm")),
    Sketcher.Constraint("Radius", 0, Q("11.850008 mm")),
    Sketcher.Constraint("Radius", 17, Q("11.850008 mm")),
    Sketcher.Constraint("Radius", 20, Q("11.850008 mm")),
    Sketcher.Constraint("Radius", 30, Q("11.850008 mm")),
    Sketcher.Constraint("DistanceX", 4, 3, 5, 1, Q("3.330001 mm")),
    Sketcher.Constraint("Radius", 1, Q("2.499982 mm")),
    Sketcher.Constraint("Radius", 4, Q("2.499998 mm")),
    Sketcher.Constraint("Radius", 6, Q("6.500065 mm")),
    Sketcher.Constraint("Radius", 7, Q("2.499998 mm")),
    Sketcher.Constraint("Radius", 13, Q("6.499993 mm")),
    Sketcher.Constraint("Radius", 14, Q("2.499998 mm")),
    Sketcher.Constraint("Radius", 23, Q("2.499998 mm")),
    Sketcher.Constraint("Radius", 24, Q("6.499993 mm")),
    Sketcher.Constraint("Radius", 25, Q("2.499998 mm")),
    Sketcher.Constraint("Radius", 26, Q("6.499993 mm")),
    Sketcher.Constraint("Radius", 27, Q("2.499998 mm")),
    Sketcher.Constraint("Radius", 33, Q("2.499998 mm")),
    Sketcher.Constraint("DistanceY", -1, 1, 0, 2, Q("6.336898 mm")),
    Sketcher.Constraint("DistanceY", -1, 1, 9, 2, Q("10.013302 mm")),
    Sketcher.Constraint("DistanceX", -1, 1, 16, 2, Q("10.013302 mm")),
    Sketcher.Constraint("DistanceX", -1, 1, 17, 2, Q("6.336898 mm")),
    Sketcher.Constraint("DistanceX", 19, 2, -1, 1, Q("10.013302 mm")),
    Sketcher.Constraint("DistanceX", 20, 2, -1, 1, Q("6.336898 mm")),
    Sketcher.Constraint("DistanceY", 29, 2, -1, 1, Q("10.013302 mm")),
    Sketcher.Constraint("DistanceY", 30, 2, -1, 1, Q("6.336898 mm")),
    Sketcher.Constraint("DistanceX", 3, 2, 4, 2, Q("2.078699 mm")),
    Sketcher.Constraint("DistanceX", 5, 1, 6, 1, Q("0.542201 mm")),
    Sketcher.Constraint("DistanceY", 6, 1, 7, 2, Q("2.078699 mm")),
    Sketcher.Constraint("DistanceY", 12, 2, 11, 2, Q("2.078699 mm")),
    Sketcher.Constraint("DistanceX", 13, 1, 14, 2, Q("2.078699 mm")),
    Sketcher.Constraint("DistanceY", 22, 2, 23, 2, Q("2.078699 mm")),
    Sketcher.Constraint("DistanceX", 25, 2, 24, 1, Q("2.078699 mm")),
    Sketcher.Constraint("DistanceY", 22, 2, 26, 1, Q("2.078699 mm")),
    Sketcher.Constraint("DistanceY", 27, 2, 26, 1, Q("2.078699 mm")),
    Sketcher.Constraint("DistanceX", 33, 2, 32, 2, Q("2.078699 mm")),
    Sketcher.Constraint("DistanceX", 3, 1, 3, 2, Q("0.417476 mm")),
    Sketcher.Constraint("DistanceX", 15, 1, 15, 2, Q("0.417476 mm")),
    Sketcher.Constraint("DistanceX", 18, 2, 18, 1, Q("0.417476 mm")),
    Sketcher.Constraint("DistanceX", 32, 2, 32, 1, Q("0.417476 mm")),
    Sketcher.Constraint("DistanceY", 8, 1, 8, 2, Q("0.417476 mm")),
    Sketcher.Constraint("DistanceY", 11, 2, 11, 1, Q("0.417476 mm")),
    Sketcher.Constraint("DistanceY", 22, 1, 22, 2, Q("0.417476 mm")),
    Sketcher.Constraint("DistanceY", 28, 2, 28, 1, Q("0.417476 mm")),
    Sketcher.Constraint("DistanceY", -1, 1, 8, 2, Q("7.900791 mm")),
    Sketcher.Constraint("DistanceY", -1, 1, 10, 2, Q("7.900791 mm")),
    Sketcher.Constraint("DistanceY", -1, 1, 13, 1, Q("3.611111 mm")),
    Sketcher.Constraint("DistanceX", 18, 2, -1, 1, Q("7.900791 mm")),
    Sketcher.Constraint("DistanceY", 21, 2, -1, 1, Q("7.900791 mm")),
    Sketcher.Constraint("DistanceX", -1, 1, 31, 2, Q("7.900791 mm")),
])
pocket1 = body.newObject("PartDesign::Pocket", "Pocket")
pocket1.Profile = sketch2
pocket1.Length = 10

doc.recompute()
